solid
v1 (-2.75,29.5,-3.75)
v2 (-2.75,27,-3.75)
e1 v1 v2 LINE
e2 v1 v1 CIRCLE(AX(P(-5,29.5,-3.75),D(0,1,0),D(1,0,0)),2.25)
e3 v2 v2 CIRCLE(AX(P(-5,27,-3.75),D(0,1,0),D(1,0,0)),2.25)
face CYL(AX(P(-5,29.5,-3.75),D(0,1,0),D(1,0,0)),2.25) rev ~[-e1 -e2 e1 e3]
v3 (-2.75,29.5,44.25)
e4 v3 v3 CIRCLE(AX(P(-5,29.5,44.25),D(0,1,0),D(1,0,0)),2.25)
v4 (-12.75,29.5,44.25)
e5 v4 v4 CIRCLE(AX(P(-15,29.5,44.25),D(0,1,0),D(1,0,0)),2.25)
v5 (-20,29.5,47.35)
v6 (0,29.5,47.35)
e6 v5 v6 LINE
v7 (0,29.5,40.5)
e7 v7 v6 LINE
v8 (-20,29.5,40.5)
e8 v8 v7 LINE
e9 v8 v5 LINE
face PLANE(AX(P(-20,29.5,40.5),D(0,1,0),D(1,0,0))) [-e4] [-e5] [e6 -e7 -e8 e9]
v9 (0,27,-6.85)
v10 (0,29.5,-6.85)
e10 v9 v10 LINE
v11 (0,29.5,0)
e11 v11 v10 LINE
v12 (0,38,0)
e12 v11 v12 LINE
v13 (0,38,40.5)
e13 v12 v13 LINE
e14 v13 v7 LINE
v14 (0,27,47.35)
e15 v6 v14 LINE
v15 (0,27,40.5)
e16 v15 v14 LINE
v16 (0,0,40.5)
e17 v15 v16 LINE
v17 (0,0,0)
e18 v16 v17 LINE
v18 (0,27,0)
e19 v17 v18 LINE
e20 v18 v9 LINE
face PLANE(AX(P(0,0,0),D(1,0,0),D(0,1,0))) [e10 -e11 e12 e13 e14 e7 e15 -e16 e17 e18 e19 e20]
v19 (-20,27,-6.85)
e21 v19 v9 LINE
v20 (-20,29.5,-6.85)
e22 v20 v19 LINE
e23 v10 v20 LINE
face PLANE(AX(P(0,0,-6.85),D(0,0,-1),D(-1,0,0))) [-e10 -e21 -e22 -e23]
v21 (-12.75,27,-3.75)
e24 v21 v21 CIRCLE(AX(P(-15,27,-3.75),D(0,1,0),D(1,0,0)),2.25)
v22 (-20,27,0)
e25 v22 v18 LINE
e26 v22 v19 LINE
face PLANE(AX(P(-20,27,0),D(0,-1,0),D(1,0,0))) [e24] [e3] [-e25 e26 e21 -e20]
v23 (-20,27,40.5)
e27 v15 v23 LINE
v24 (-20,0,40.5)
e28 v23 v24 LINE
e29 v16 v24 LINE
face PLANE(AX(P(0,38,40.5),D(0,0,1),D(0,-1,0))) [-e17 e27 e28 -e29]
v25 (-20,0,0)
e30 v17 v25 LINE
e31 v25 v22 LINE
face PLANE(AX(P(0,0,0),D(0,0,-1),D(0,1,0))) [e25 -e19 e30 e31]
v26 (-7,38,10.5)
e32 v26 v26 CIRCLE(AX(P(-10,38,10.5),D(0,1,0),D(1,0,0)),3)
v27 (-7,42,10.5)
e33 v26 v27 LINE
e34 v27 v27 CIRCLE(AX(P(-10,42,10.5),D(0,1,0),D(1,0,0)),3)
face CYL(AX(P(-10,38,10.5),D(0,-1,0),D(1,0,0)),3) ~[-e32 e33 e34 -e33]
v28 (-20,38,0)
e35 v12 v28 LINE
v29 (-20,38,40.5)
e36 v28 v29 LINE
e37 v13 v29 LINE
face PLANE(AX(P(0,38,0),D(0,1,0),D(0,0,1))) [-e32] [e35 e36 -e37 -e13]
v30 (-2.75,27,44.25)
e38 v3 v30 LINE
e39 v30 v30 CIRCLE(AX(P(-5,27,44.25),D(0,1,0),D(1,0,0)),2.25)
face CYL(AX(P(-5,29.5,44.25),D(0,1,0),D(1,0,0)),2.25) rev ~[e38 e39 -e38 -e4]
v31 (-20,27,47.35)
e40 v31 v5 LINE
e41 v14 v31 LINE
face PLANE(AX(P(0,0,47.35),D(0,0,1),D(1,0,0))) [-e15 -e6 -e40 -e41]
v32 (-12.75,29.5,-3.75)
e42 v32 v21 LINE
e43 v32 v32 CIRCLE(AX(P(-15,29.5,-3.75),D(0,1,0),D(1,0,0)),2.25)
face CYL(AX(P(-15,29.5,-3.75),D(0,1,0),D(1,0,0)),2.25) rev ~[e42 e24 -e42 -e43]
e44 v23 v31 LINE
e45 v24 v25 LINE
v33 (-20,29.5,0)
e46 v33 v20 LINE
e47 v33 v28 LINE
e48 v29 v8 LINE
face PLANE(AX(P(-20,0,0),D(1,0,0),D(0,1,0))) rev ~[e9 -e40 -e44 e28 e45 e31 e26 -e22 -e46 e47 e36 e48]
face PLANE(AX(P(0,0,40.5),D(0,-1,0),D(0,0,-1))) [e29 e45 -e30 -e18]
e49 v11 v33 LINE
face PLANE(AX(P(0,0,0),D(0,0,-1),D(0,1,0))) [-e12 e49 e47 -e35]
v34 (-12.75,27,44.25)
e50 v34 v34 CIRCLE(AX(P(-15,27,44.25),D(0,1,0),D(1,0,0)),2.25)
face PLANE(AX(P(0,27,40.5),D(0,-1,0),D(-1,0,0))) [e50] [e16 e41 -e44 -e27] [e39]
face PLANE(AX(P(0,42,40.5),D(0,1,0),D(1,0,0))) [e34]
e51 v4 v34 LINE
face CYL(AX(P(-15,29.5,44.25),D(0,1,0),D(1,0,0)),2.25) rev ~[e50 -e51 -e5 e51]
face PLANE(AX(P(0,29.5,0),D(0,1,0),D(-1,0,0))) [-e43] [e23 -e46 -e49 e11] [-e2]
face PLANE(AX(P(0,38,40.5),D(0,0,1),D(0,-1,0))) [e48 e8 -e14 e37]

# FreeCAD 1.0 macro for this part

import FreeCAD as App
import Part
import Sketcher
from FreeCAD import Vector


def add_polygon(sketch, points):
    """Adds a closed chain of lines whose ends are joined by coincident constraints."""
    first, n = sketch.GeometryCount, len(points)
    for a, b in zip(points, points[1:] + points[:1]):
        sketch.addGeometry(Part.LineSegment(App.Vector(*a, 0), App.Vector(*b, 0)), False)
    for i in range(n):
        sketch.addConstraint(Sketcher.Constraint("Coincident", first + i, 2, first + (i + 1) % n, 1))

doc = App.newDocument("Part")
params = doc.addObject("Spreadsheet::Sheet", "Params")
for row, (alias, value) in enumerate([
    ("sketch1_width", "38 mm"),
    ("sketch1_height", "40.5 mm"),
    ("pad1_length", "20 mm"),
    ("sketch2_width", "20 mm"),
    ("sketch2_height", "2.5 mm"),
    ("pad2_length", "6.85 mm"),
    ("sketch3_width", "20 mm"),
    ("sketch3_height", "2.5 mm"),
    ("pad3_length", "6.85 mm"),
    ("sketch4_diameter", "4.5 mm"),
    ("pocket1_length", "10 mm"),
    ("sketch5_diameter", "6 mm"),
    ("pad4_length", "4 mm"),
], start=1):
    params.set(f"A{row}", alias)
    params.set(f"B{row}", "=" + value)
    params.setAlias(f"B{row}", alias)

body = doc.addObject("PartDesign::Body", "Body")

# Sketch on YZ plane
sketch1 = body.newObject("Sketcher::SketchObject", "Sketch")
sketch1.AttachmentSupport = (doc.getObject("YZ_Plane"), [""])
sketch1.MapMode = "FlatFace"
add_polygon(sketch1, [(38, 0), (38, 40.5), (0, 40.5), (0, 0)])  # lines 0-3
sketch1.addConstraint(Sketcher.Constraint("Vertical", 0))
sketch1.addConstraint(Sketcher.Constraint("Horizontal", 1))
sketch1.addConstraint(Sketcher.Constraint("Vertical", 2))
sketch1.addConstraint(Sketcher.Constraint("Horizontal", 3))
sketch1.addConstraint(Sketcher.Constraint("Coincident", 2, 2, -1, 1))
sketch1.addConstraint(Sketcher.Constraint("DistanceX", 1, 2, 1, 1, 38.0))
sketch1.addConstraint(Sketcher.Constraint("DistanceY", 0, 1, 0, 2, 40.5))
sketch1.setExpression("Constraints[9]", "Params.sketch1_width")
sketch1.setExpression("Constraints[10]", "Params.sketch1_height")
pad1 = body.newObject("PartDesign::Pad", "Pad")
pad1.Profile = sketch1
pad1.setExpression("Length", "Params.pad1_length")
pad1.Reversed = True

# Sketch on XY plane
sketch2 = body.newObject("Sketcher::SketchObject", "Sketch001")
sketch2.AttachmentSupport = (doc.getObject("XY_Plane"), [""])
sketch2.MapMode = "FlatFace"
sketch2.AttachmentOffset = App.Placement(Vector(0, 0, 40.5), App.Rotation())
add_polygon(sketch2, [(-20, 27), (0, 27), (0, 29.5), (-20, 29.5)])  # lines 0-3
sketch2.addConstraint(Sketcher.Constraint("Horizontal", 0))
sketch2.addConstraint(Sketcher.Constraint("Vertical", 1))
sketch2.addConstraint(Sketcher.Constraint("Horizontal", 2))
sketch2.addConstraint(Sketcher.Constraint("Vertical", 3))
sketch2.addConstraint(Sketcher.Constraint("PointOnObject", 0, 2, -2))
sketch2.addConstraint(Sketcher.Constraint("DistanceX", 0, 1, 0, 2, 20.0))
sketch2.addConstraint(Sketcher.Constraint("DistanceY", 1, 1, 1, 2, 2.5))
sketch2.addConstraint(Sketcher.Constraint("DistanceY", -1, 1, 0, 2, 27.0))
sketch2.setExpression("Constraints[9]", "Params.sketch2_width")
sketch2.setExpression("Constraints[10]", "Params.sketch2_height")
pad2 = body.newObject("PartDesign::Pad", "Pad001")
pad2.Profile = sketch2
pad2.setExpression("Length", "Params.pad2_length")

# Sketch on XY plane
sketch3 = body.newObject("Sketcher::SketchObject", "Sketch002")
sketch3.AttachmentSupport = (doc.getObject("XY_Plane"), [""])
sketch3.MapMode = "FlatFace"
add_polygon(sketch3, [(0, 27), (-20, 27), (-20, 29.5), (0, 29.5)])  # lines 0-3
sketch3.addConstraint(Sketcher.Constraint("Horizontal", 0))
sketch3.addConstraint(Sketcher.Constraint("Vertical", 1))
sketch3.addConstraint(Sketcher.Constraint("Horizontal", 2))
sketch3.addConstraint(Sketcher.Constraint("Vertical", 3))
sketch3.addConstraint(Sketcher.Constraint("PointOnObject", 2, 2, -2))
sketch3.addConstraint(Sketcher.Constraint("DistanceX", 0, 2, 0, 1, 20.0))
sketch3.addConstraint(Sketcher.Constraint("DistanceY", 1, 1, 1, 2, 2.5))
sketch3.addConstraint(Sketcher.Constraint("DistanceY", -1, 1, 0, 2, 27.0))
sketch3.setExpression("Constraints[9]", "Params.sketch3_width")
sketch3.setExpression("Constraints[10]", "Params.sketch3_height")
pad3 = body.newObject("PartDesign::Pad", "Pad002")
pad3.Profile = sketch3
pad3.setExpression("Length", "Params.pad3_length")
pad3.Reversed = True

# Sketch on XZ plane
sketch4 = body.newObject("Sketcher::SketchObject", "Sketch003")
sketch4.AttachmentSupport = (doc.getObject("XZ_Plane"), [""])
sketch4.MapMode = "FlatFace"
sketch4.AttachmentOffset = App.Placement(Vector(0, 0, -29.5), App.Rotation())
sketch4.addGeometry(Part.Circle(Vector(-15, 44.25, 0), Vector(0, 0, 1), 2.25), False)
sketch4.addGeometry(Part.Circle(Vector(-5, 44.25, 0), Vector(0, 0, 1), 2.25), False)
sketch4.addGeometry(Part.Circle(Vector(-15, -3.75, 0), Vector(0, 0, 1), 2.25), False)
sketch4.addGeometry(Part.Circle(Vector(-5, -3.75, 0), Vector(0, 0, 1), 2.25), False)
sketch4.addConstraint(Sketcher.Constraint("Equal", 0, 1))
sketch4.addConstraint(Sketcher.Constraint("Equal", 1, 2))
sketch4.addConstraint(Sketcher.Constraint("Equal", 2, 3))
sketch4.addConstraint(Sketcher.Constraint("Horizontal", 0, 3, 1, 3))
sketch4.addConstraint(Sketcher.Constraint("Horizontal", 2, 3, 3, 3))
sketch4.addConstraint(Sketcher.Constraint("Vertical", 0, 3, 2, 3))
sketch4.addConstraint(Sketcher.Constraint("Vertical", 1, 3, 3, 3))
sketch4.addConstraint(Sketcher.Constraint("Diameter", 0, 4.5))
sketch4.addConstraint(Sketcher.Constraint("DistanceX", 1, 3, -1, 1, 5.0))
sketch4.addConstraint(Sketcher.Constraint("DistanceX", 0, 3, 1, 3, 10.0))
sketch4.addConstraint(Sketcher.Constraint("DistanceY", 2, 3, 0, 3, 48.0))
sketch4.addConstraint(Sketcher.Constraint("DistanceY", 2, 3, -1, 1, 3.75))
sketch4.setExpression("Constraints[7]", "Params.sketch4_diameter")
pocket1 = body.newObject("PartDesign::Pocket", "Pocket")
pocket1.Profile = sketch4
pocket1.setExpression("Length", "Params.pocket1_length")
pocket1.Reversed = True

# Sketch on XZ plane
sketch5 = body.newObject("Sketcher::SketchObject", "Sketch004")
sketch5.AttachmentSupport = (doc.getObject("XZ_Plane"), [""])
sketch5.MapMode = "FlatFace"
sketch5.AttachmentOffset = App.Placement(Vector(0, 0, -38), App.Rotation())
sketch5.addGeometry(Part.Circle(Vector(-10, 10.5, 0), Vector(0, 0, 1), 3), False)
sketch5.addConstraint(Sketcher.Constraint("Diameter", 0, 6.0))
sketch5.addConstraint(Sketcher.Constraint("DistanceX", 0, 3, -1, 1, 10.0))
sketch5.addConstraint(Sketcher.Constraint("DistanceY", -1, 1, 0, 3, 10.5))
sketch5.setExpression("Constraints[0]", "Params.sketch5_diameter")
pad4 = body.newObject("PartDesign::Pad", "Pad003")
pad4.Profile = sketch5
pad4.setExpression("Length", "Params.pad4_length")
pad4.Reversed = True

doc.recompute()
